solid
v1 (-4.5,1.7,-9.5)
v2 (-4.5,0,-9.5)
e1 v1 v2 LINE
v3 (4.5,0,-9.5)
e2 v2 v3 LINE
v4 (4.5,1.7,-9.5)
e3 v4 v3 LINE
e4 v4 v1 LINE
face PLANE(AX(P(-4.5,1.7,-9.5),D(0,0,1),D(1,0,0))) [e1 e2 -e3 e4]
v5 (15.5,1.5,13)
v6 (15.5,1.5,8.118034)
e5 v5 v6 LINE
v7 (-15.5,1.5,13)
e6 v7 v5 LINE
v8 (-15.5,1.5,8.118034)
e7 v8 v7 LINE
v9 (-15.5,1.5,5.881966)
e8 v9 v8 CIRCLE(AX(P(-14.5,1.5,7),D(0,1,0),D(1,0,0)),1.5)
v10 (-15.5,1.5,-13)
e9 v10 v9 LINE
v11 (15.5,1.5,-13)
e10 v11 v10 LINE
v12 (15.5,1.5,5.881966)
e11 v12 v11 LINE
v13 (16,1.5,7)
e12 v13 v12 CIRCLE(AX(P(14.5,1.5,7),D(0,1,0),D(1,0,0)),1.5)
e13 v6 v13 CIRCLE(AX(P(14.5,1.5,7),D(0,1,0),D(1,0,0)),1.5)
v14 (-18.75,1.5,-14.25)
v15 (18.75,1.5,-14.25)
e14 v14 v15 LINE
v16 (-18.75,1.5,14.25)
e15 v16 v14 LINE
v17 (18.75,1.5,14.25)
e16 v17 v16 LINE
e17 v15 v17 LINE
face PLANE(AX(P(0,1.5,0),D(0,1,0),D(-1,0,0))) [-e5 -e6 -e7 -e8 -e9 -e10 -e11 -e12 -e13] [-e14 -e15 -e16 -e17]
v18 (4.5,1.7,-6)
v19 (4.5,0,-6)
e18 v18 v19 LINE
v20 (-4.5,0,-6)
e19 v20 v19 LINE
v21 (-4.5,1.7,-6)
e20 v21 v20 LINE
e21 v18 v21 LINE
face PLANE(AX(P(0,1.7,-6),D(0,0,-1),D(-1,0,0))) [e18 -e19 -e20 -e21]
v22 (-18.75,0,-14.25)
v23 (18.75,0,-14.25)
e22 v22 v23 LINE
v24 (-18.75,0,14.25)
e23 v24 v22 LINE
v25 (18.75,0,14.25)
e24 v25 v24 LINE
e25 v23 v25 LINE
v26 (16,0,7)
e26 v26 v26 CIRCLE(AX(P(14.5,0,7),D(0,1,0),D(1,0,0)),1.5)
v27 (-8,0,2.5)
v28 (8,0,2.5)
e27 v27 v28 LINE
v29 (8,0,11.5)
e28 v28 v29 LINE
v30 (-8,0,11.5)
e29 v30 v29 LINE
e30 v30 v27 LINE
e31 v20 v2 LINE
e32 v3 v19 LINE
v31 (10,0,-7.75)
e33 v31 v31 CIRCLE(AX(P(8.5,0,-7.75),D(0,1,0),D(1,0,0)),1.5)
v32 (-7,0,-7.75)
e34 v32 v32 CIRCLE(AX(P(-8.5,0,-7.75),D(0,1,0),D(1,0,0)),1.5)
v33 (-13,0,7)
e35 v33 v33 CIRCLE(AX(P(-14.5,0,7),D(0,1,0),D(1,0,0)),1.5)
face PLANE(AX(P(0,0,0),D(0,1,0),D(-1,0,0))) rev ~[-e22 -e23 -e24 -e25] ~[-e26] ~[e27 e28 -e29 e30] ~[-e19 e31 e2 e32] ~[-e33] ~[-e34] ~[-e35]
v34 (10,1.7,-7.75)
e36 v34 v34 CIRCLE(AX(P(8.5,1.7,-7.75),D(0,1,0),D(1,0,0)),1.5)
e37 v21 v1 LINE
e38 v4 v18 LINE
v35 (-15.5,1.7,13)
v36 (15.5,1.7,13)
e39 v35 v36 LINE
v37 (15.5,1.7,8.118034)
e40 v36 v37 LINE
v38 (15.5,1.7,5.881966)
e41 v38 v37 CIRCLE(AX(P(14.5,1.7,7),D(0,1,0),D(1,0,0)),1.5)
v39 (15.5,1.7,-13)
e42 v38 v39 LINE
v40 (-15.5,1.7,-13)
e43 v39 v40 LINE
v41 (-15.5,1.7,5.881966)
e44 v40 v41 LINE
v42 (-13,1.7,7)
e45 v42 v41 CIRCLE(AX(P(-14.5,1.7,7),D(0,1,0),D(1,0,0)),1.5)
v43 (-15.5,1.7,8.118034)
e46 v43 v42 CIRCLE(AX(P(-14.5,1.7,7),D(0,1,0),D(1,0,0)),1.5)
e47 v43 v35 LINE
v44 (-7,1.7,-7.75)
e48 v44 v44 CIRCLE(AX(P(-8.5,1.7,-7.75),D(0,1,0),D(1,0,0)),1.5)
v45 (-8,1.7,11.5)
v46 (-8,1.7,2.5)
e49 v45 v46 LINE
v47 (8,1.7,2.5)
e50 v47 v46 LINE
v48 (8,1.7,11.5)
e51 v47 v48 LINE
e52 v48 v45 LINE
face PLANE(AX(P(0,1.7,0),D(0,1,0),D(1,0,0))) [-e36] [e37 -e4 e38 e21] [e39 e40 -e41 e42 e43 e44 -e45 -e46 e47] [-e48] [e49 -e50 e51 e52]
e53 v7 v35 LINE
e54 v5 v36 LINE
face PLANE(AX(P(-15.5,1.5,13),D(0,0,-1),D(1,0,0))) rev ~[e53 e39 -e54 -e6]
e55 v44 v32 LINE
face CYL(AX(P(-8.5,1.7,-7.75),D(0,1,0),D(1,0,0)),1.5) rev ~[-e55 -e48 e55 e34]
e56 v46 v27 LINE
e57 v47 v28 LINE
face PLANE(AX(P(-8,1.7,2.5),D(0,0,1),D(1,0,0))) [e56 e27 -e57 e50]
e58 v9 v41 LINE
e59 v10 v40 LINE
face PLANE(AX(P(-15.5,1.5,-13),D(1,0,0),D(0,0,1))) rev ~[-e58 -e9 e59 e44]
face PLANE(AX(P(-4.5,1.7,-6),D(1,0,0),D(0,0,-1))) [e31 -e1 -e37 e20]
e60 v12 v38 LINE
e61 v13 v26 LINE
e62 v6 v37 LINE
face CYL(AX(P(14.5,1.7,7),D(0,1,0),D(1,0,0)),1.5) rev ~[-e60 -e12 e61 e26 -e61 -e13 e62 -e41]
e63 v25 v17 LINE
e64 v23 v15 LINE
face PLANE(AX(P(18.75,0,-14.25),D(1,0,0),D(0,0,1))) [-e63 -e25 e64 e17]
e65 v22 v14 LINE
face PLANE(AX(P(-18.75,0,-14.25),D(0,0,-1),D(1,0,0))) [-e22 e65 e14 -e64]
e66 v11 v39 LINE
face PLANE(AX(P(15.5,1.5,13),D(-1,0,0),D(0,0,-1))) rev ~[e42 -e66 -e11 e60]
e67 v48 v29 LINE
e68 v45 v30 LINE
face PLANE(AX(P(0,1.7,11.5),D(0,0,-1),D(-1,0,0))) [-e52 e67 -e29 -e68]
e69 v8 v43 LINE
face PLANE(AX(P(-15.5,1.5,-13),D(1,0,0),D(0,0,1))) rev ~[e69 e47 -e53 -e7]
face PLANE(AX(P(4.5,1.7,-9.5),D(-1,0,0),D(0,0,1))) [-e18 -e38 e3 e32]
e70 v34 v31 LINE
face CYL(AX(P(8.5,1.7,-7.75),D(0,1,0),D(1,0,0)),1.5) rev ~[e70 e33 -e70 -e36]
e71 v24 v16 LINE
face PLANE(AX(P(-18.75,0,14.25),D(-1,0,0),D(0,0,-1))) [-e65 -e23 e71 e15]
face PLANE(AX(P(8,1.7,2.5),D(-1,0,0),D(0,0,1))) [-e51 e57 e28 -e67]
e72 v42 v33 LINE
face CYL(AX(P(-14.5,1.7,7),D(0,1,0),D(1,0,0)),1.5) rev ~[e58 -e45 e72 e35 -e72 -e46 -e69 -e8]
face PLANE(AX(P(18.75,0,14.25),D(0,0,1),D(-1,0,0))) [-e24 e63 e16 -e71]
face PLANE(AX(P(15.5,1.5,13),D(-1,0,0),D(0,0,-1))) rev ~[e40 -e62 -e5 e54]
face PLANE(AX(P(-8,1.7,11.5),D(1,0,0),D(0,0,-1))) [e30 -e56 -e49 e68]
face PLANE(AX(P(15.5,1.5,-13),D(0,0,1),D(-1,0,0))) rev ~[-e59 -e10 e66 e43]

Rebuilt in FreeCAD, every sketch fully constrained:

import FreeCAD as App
import Part
import Sketcher

V = App.Vector
Q = App.Units.Quantity

doc = App.newDocument("Part")
body = doc.addObject("PartDesign::Body", "Body")

# Sketch on XZ plane
sketch1 = doc.addObject("Sketcher::SketchObject", "Sketch")
body.addObject(sketch1)
sketch1.AttachmentSupport = (doc.XZ_Plane, [""])
sketch1.MapMode = "FlatFace"
sketch1.addGeometry([
    Part.LineSegment(V(19, -14, 0), V(-19, -14, 0)),
    Part.LineSegment(V(-19, -14, 0), V(-19, 14, 0)),
    Part.LineSegment(V(-19, 14, 0), V(19, 14, 0)),
    Part.LineSegment(V(19, 14, 0), V(19, -14, 0)),
], False)
sketch1.addConstraint([
    Sketcher.Constraint("Coincident", 0, 2, 1, 1),
    Sketcher.Constraint("Coincident", 1, 2, 2, 1),
    Sketcher.Constraint("Coincident", 2, 2, 3, 1),
    Sketcher.Constraint("Coincident", 3, 2, 0, 1),
    Sketcher.Constraint("Horizontal", 0),
    Sketcher.Constraint("Vertical", 1),
    Sketcher.Constraint("Horizontal", 2),
    Sketcher.Constraint("Vertical", 3),
    Sketcher.Constraint("Symmetric", 0, 2, 2, 2, -1, 1),
    Sketcher.Constraint("DistanceX", 0, 2, 0, 1, Q("37.5 mm")),
    Sketcher.Constraint("DistanceY", 1, 1, 1, 2, Q("28.5 mm")),
])
pad1 = doc.addObject("PartDesign::Pad", "Pad")
body.addObject(pad1)
pad1.Profile = sketch1
pad1.Length = 1.5
pad1.Reversed = True

# Sketch on XZ plane
sketch2 = doc.addObject("Sketcher::SketchObject", "Sketch001")
body.addObject(sketch2)
sketch2.AttachmentSupport = (doc.XZ_Plane, [""])
sketch2.MapMode = "FlatFace"
sketch2.AttachmentOffset = App.Placement(V(0, 0, -1.5), App.Rotation())
sketch2.addGeometry([
    Part.LineSegment(V(16, 13, 0), V(16, -13, 0)),
    Part.LineSegment(V(16, -13, 0), V(-16, -13, 0)),
    Part.LineSegment(V(-16, -13, 0), V(-16, 13, 0)),
    Part.LineSegment(V(-16, 13, 0), V(16, 13, 0)),
], False)
sketch2.addConstraint([
    Sketcher.Constraint("Coincident", 0, 2, 1, 1),
    Sketcher.Constraint("Coincident", 1, 2, 2, 1),
    Sketcher.Constraint("Coincident", 2, 2, 3, 1),
    Sketcher.Constraint("Coincident", 3, 2, 0, 1),
    Sketcher.Constraint("Vertical", 0),
    Sketcher.Constraint("Horizontal", 1),
    Sketcher.Constraint("Vertical", 2),
    Sketcher.Constraint("Horizontal", 3),
    Sketcher.Constraint("Symmetric", 0, 2, 2, 2, -1, 1),
    Sketcher.Constraint("DistanceX", 1, 2, 1, 1, Q("31 mm")),
    Sketcher.Constraint("DistanceY", 0, 2, 0, 1, Q("26 mm")),
])
pad2 = doc.addObject("PartDesign::Pad", "Pad001")
body.addObject(pad2)
pad2.Profile = sketch2
pad2.Length = 0.2
pad2.Reversed = True

# Sketch on XZ plane
sketch3 = doc.addObject("Sketcher::SketchObject", "Sketch002")
body.addObject(sketch3)
sketch3.AttachmentSupport = (doc.XZ_Plane, [""])
sketch3.MapMode = "FlatFace"
sketch3.AttachmentOffset = App.Placement(V(0, 0, -1.7), App.Rotation())
sketch3.addGeometry([
    Part.Circle(V(-14.5, 7, 0), V(0, 0, 1), 1.5),  # 0
    Part.Circle(V(14.5, 7, 0), V(0, 0, 1), 1.5),  # 1
    Part.Circle(V(-8.5, -7.8, 0), V(0, 0, 1), 1.5),  # 2
    Part.Circle(V(8.5, -7.8, 0), V(0, 0, 1), 1.5),  # 3
    Part.LineSegment(V(-8, 11.5, 0), V(8, 11.5, 0)),  # 4
    Part.LineSegment(V(8, 11.5, 0), V(8, 2.5, 0)),  # 5
    Part.LineSegment(V(8, 2.5, 0), V(-8, 2.5, 0)),  # 6
    Part.LineSegment(V(-8, 2.5, 0), V(-8, 11.5, 0)),  # 7
    Part.LineSegment(V(-4.5, -6, 0), V(4.5, -6, 0)),  # 8
    Part.LineSegment(V(4.5, -6, 0), V(4.5, -9.5, 0)),  # 9
    Part.LineSegment(V(4.5, -9.5, 0), V(-4.5, -9.5, 0)),  # 10
    Part.LineSegment(V(-4.5, -9.5, 0), V(-4.5, -6, 0)),  # 11
], False)
sketch3.addConstraint([
    Sketcher.Constraint("Coincident", 4, 2, 5, 1),
    Sketcher.Constraint("Coincident", 5, 2, 6, 1),
    Sketcher.Constraint("Coincident", 6, 2, 7, 1),
    Sketcher.Constraint("Coincident", 7, 2, 4, 1),
    Sketcher.Constraint("Coincident", 8, 2, 9, 1),
    Sketcher.Constraint("Coincident", 9, 2, 10, 1),
    Sketcher.Constraint("Coincident", 10, 2, 11, 1),
    Sketcher.Constraint("Coincident", 11, 2, 8, 1),
    Sketcher.Constraint("Horizontal", 4),
    Sketcher.Constraint("Vertical", 5),
    Sketcher.Constraint("Horizontal", 6),
    Sketcher.Constraint("Vertical", 7),
    Sketcher.Constraint("Horizontal", 8),
    Sketcher.Constraint("Vertical", 9),
    Sketcher.Constraint("Horizontal", 10),
    Sketcher.Constraint("Vertical", 11),
    Sketcher.Constraint("Equal", 0, 1),
    Sketcher.Constraint("Equal", 1, 2),
    Sketcher.Constraint("Equal", 2, 3),
    Sketcher.Constraint("Symmetric", 0, 3, 1, 3, -2),
    Sketcher.Constraint("Symmetric", 2, 3, 3, 3, -2),
    Sketcher.Constraint("Equal", 10, 5),
    Sketcher.Constraint("Diameter", 0, Q("3 mm")),
    Sketcher.Constraint("DistanceX", 4, 1, 4, 2, Q("16 mm")),
    Sketcher.Constraint("DistanceX", 8, 1, 8, 2, Q("9 mm")),
    Sketcher.Constraint("DistanceY", 9, 2, 9, 1, Q("3.5 mm")),
    Sketcher.Constraint("DistanceY", 8, 2, -1, 1, Q("6 mm")),
    Sketcher.Constraint("DistanceX", 0, 3, 2, 3, Q("6 mm")),
    Sketcher.Constraint("DistanceX", 0, 3, -1, 1, Q("14.5 mm")),
    Sketcher.Constraint("DistanceX", 8, 2, 5, 2, Q("3.5 mm")),
    Sketcher.Constraint("DistanceY", 8, 2, 5, 2, Q("8.5 mm")),
    Sketcher.Constraint("DistanceY", -1, 1, 0, 3, Q("7 mm")),
    Sketcher.Constraint("DistanceX", -1, 1, 4, 2, Q("8 mm")),
    Sketcher.Constraint("DistanceY", 2, 3, -1, 1, Q("7.75 mm")),
])
pocket1 = doc.addObject("PartDesign::Pocket", "Pocket")
body.addObject(pocket1)
pocket1.Profile = sketch3
pocket1.Length = 1.7
pocket1.Reversed = True

doc.recompute()
